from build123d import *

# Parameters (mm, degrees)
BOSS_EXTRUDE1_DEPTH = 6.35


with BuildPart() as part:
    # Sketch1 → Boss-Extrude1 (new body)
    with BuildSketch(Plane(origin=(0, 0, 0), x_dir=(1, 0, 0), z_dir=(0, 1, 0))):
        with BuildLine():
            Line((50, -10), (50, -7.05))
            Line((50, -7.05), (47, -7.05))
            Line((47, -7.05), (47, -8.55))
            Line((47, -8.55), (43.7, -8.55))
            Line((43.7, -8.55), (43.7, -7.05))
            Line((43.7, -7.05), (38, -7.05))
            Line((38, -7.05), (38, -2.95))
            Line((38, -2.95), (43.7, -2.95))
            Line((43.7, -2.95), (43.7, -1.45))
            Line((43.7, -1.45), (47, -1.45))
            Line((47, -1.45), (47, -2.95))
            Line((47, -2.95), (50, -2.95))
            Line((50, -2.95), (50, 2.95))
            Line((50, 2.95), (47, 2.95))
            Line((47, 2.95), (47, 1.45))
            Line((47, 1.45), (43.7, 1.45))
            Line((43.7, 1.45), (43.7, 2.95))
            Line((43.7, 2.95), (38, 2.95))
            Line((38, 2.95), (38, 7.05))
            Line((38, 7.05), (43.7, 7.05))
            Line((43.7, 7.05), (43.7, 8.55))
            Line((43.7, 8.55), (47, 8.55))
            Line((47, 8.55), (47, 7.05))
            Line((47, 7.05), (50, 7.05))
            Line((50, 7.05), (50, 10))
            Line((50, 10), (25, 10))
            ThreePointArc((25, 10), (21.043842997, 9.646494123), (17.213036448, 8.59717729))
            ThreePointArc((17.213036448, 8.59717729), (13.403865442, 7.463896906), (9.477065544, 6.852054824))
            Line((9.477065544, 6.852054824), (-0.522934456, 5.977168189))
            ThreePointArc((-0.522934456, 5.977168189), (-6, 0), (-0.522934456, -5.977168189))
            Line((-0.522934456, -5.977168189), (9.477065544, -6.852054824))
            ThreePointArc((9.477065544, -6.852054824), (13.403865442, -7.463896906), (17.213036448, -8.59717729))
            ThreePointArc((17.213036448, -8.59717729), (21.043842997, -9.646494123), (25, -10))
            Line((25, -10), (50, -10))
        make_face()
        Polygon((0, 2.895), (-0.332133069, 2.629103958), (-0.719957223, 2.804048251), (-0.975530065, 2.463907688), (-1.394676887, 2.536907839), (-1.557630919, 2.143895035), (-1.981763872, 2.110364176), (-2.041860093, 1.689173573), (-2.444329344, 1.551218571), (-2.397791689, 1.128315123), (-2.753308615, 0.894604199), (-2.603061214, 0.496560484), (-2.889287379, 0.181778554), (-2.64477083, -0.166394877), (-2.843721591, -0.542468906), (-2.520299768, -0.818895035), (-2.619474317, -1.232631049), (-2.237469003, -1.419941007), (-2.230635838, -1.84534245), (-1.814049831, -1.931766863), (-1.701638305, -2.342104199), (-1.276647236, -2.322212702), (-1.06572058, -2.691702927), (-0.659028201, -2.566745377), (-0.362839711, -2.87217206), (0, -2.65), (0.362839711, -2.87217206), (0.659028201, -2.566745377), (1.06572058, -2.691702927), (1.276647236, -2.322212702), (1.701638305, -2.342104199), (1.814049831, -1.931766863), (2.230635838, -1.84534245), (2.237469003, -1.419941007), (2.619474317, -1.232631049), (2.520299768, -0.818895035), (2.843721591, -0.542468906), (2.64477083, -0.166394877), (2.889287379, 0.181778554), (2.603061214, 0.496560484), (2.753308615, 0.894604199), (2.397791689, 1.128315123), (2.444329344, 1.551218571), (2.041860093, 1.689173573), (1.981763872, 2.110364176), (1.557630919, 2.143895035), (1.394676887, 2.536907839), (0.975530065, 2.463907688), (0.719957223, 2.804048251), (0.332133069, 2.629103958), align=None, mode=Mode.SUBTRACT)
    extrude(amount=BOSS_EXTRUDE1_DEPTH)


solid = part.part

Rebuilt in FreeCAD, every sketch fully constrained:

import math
import FreeCAD as App
import Part
import Sketcher
from FreeCAD import Vector
Q = App.Units.Quantity


def add_polygon(sketch, points):
    """Adds a closed chain of lines whose ends are joined by coincident constraints."""
    first, n = sketch.GeometryCount, len(points)
    for a, b in zip(points, points[1:] + points[:1]):
        sketch.addGeometry(Part.LineSegment(App.Vector(*a, 0), App.Vector(*b, 0)), False)
    for i in range(n):
        sketch.addConstraint(Sketcher.Constraint("Coincident", first + i, 2, first + (i + 1) % n, 1))

doc = App.newDocument("Part")
params = doc.addObject("Spreadsheet::Sheet", "Params")
for row, (alias, value) in enumerate([
    ("sketch1_radius", "6 mm"),
    ("sketch1_width", "3 mm"),
    ("sketch1_width2", "25 mm"),
    ("sketch1_width3", "3.3 mm"),
    ("sketch1_width4", "5.7 mm"),
    ("pad1_length", "6.35 mm"),
], start=1):
    params.set(f"A{row}", alias)
    params.set(f"B{row}", "=" + value)
    params.setAlias(f"B{row}", alias)

body = doc.addObject("PartDesign::Body", "Body")

# Sketch on XZ plane
sketch1 = body.newObject("Sketcher::SketchObject", "Sketch")
sketch1.AttachmentSupport = (doc.getObject("XZ_Plane"), [""])
sketch1.MapMode = "FlatFace"
sketch1.addGeometry(Part.LineSegment(Vector(50, 10, 0), Vector(50, 7.05, 0)), False)  # 0
sketch1.addGeometry(Part.LineSegment(Vector(50, 7.05, 0), Vector(47, 7.05, 0)), False)  # 1
sketch1.addGeometry(Part.LineSegment(Vector(47, 7.05, 0), Vector(47, 8.55, 0)), False)  # 2
sketch1.addGeometry(Part.LineSegment(Vector(47, 8.55, 0), Vector(43.7, 8.55, 0)), False)  # 3
sketch1.addGeometry(Part.LineSegment(Vector(43.7, 8.55, 0), Vector(43.7, 7.05, 0)), False)  # 4
sketch1.addGeometry(Part.LineSegment(Vector(43.7, 7.05, 0), Vector(38, 7.05, 0)), False)  # 5
sketch1.addGeometry(Part.LineSegment(Vector(38, 7.05, 0), Vector(38, 2.95, 0)), False)  # 6
sketch1.addGeometry(Part.LineSegment(Vector(38, 2.95, 0), Vector(43.7, 2.95, 0)), False)  # 7
sketch1.addGeometry(Part.LineSegment(Vector(43.7, 2.95, 0), Vector(43.7, 1.45, 0)), False)  # 8
sketch1.addGeometry(Part.LineSegment(Vector(43.7, 1.45, 0), Vector(47, 1.45, 0)), False)  # 9
sketch1.addGeometry(Part.LineSegment(Vector(47, 1.45, 0), Vector(47, 2.95, 0)), False)  # 10
sketch1.addGeometry(Part.LineSegment(Vector(47, 2.95, 0), Vector(50, 2.95, 0)), False)  # 11
sketch1.addGeometry(Part.LineSegment(Vector(50, 2.95, 0), Vector(50, -2.95, 0)), False)  # 12
sketch1.addGeometry(Part.LineSegment(Vector(50, -2.95, 0), Vector(47, -2.95, 0)), False)  # 13
sketch1.addGeometry(Part.LineSegment(Vector(47, -2.95, 0), Vector(47, -1.45, 0)), False)  # 14
sketch1.addGeometry(Part.LineSegment(Vector(47, -1.45, 0), Vector(43.7, -1.45, 0)), False)  # 15
sketch1.addGeometry(Part.LineSegment(Vector(43.7, -1.45, 0), Vector(43.7, -2.95, 0)), False)  # 16
sketch1.addGeometry(Part.LineSegment(Vector(43.7, -2.95, 0), Vector(38, -2.95, 0)), False)  # 17
sketch1.addGeometry(Part.LineSegment(Vector(38, -2.95, 0), Vector(38, -7.05, 0)), False)  # 18
sketch1.addGeometry(Part.LineSegment(Vector(38, -7.05, 0), Vector(43.7, -7.05, 0)), False)  # 19
sketch1.addGeometry(Part.LineSegment(Vector(43.7, -7.05, 0), Vector(43.7, -8.55, 0)), False)  # 20
sketch1.addGeometry(Part.LineSegment(Vector(43.7, -8.55, 0), Vector(47, -8.55, 0)), False)  # 21
sketch1.addGeometry(Part.LineSegment(Vector(47, -8.55, 0), Vector(47, -7.05, 0)), False)  # 22
sketch1.addGeometry(Part.LineSegment(Vector(47, -7.05, 0), Vector(50, -7.05, 0)), False)  # 23
sketch1.addGeometry(Part.LineSegment(Vector(50, -7.05, 0), Vector(50, -10, 0)), False)  # 24
sketch1.addGeometry(Part.LineSegment(Vector(50, -10, 0), Vector(25, -10, 0)), False)  # 25
sketch1.addGeometry(Part.ArcOfCircle(Part.Circle(Vector(25, 12.31, 0), Vector(0, 0, 1), 22.31), math.radians(-110), math.radians(-90)), False)  # 26
sketch1.addGeometry(Part.ArcOfCircle(Part.Circle(Vector(6.9, -36.29, 0), Vector(0, 0, 1), 29.55), math.radians(69.58), math.radians(85)), False)  # 27
sketch1.addGeometry(Part.LineSegment(Vector(9.48, -6.85, 0), Vector(-0.52, -5.98, 0)), False)  # 28
sketch1.addGeometry(Part.ArcOfCircle(Part.Circle(Vector(0, 0, 0), Vector(0, 0, 1), 6), math.radians(95), math.radians(265)), False)  # 29
sketch1.addGeometry(Part.LineSegment(Vector(-0.52, 5.98, 0), Vector(9.48, 6.85, 0)), False)  # 30
sketch1.addGeometry(Part.ArcOfCircle(Part.Circle(Vector(6.9, 36.29, 0), Vector(0, 0, 1), 29.55), math.radians(-85), math.radians(-69.58)), False)  # 31
sketch1.addGeometry(Part.ArcOfCircle(Part.Circle(Vector(25, -12.31, 0), Vector(0, 0, 1), 22.31), math.radians(90), math.radians(110)), False)  # 32
sketch1.addGeometry(Part.LineSegment(Vector(25, 10, 0), Vector(50, 10, 0)), False)  # 33
add_polygon(sketch1, [(-0.33, -2.63), (0, -2.9), (0.33, -2.63), (0.72, -2.8), (0.98, -2.46), (1.39, -2.54), (1.56, -2.14), (1.98, -2.11), (2.04, -1.69), (2.44, -1.55), (2.4, -1.13), (2.75, -0.89), (2.6, -0.5), (2.89, -0.18), (2.64, 0.17), (2.84, 0.54), (2.52, 0.82), (2.62, 1.23), (2.24, 1.42), (2.23, 1.85), (1.81, 1.93), (1.7, 2.34), (1.28, 2.32), (1.07, 2.69), (0.66, 2.57), (0.36, 2.87), (0, 2.65), (-0.36, 2.87), (-0.66, 2.57), (-1.07, 2.69), (-1.28, 2.32), (-1.7, 2.34), (-1.81, 1.93), (-2.23, 1.85), (-2.24, 1.42), (-2.62, 1.23), (-2.52, 0.82), (-2.84, 0.54), (-2.64, 0.17), (-2.89, -0.18), (-2.6, -0.5), (-2.75, -0.89), (-2.4, -1.13), (-2.44, -1.55), (-2.04, -1.69), (-1.98, -2.11), (-1.56, -2.14), (-1.39, -2.54), (-0.98, -2.46), (-0.72, -2.8)])  # lines 34-83
sketch1.addConstraint(Sketcher.Constraint("Coincident", 0, 2, 1, 1))
sketch1.addConstraint(Sketcher.Constraint("Coincident", 1, 2, 2, 1))
sketch1.addConstraint(Sketcher.Constraint("Coincident", 2, 2, 3, 1))
sketch1.addConstraint(Sketcher.Constraint("Coincident", 3, 2, 4, 1))
sketch1.addConstraint(Sketcher.Constraint("Coincident", 4, 2, 5, 1))
sketch1.addConstraint(Sketcher.Constraint("Coincident", 5, 2, 6, 1))
sketch1.addConstraint(Sketcher.Constraint("Coincident", 6, 2, 7, 1))
sketch1.addConstraint(Sketcher.Constraint("Coincident", 7, 2, 8, 1))
sketch1.addConstraint(Sketcher.Constraint("Coincident", 8, 2, 9, 1))
sketch1.addConstraint(Sketcher.Constraint("Coincident", 9, 2, 10, 1))
sketch1.addConstraint(Sketcher.Constraint("Coincident", 10, 2, 11, 1))
sketch1.addConstraint(Sketcher.Constraint("Coincident", 11, 2, 12, 1))
sketch1.addConstraint(Sketcher.Constraint("Coincident", 12, 2, 13, 1))
sketch1.addConstraint(Sketcher.Constraint("Coincident", 13, 2, 14, 1))
sketch1.addConstraint(Sketcher.Constraint("Coincident", 14, 2, 15, 1))
sketch1.addConstraint(Sketcher.Constraint("Coincident", 15, 2, 16, 1))
sketch1.addConstraint(Sketcher.Constraint("Coincident", 16, 2, 17, 1))
sketch1.addConstraint(Sketcher.Constraint("Coincident", 17, 2, 18, 1))
sketch1.addConstraint(Sketcher.Constraint("Coincident", 18, 2, 19, 1))
sketch1.addConstraint(Sketcher.Constraint("Coincident", 19, 2, 20, 1))
sketch1.addConstraint(Sketcher.Constraint("Coincident", 20, 2, 21, 1))
sketch1.addConstraint(Sketcher.Constraint("Coincident", 21, 2, 22, 1))
sketch1.addConstraint(Sketcher.Constraint("Coincident", 22, 2, 23, 1))
sketch1.addConstraint(Sketcher.Constraint("Coincident", 23, 2, 24, 1))
sketch1.addConstraint(Sketcher.Constraint("Coincident", 24, 2, 25, 1))
sketch1.addConstraint(Sketcher.Constraint("Tangent", 25, 2, 26, 2))
sketch1.addConstraint(Sketcher.Constraint("Tangent", 26, 1, 27, 1))
sketch1.addConstraint(Sketcher.Constraint("Tangent", 27, 2, 28, 1))
sketch1.addConstraint(Sketcher.Constraint("Tangent", 28, 2, 29, 2))
sketch1.addConstraint(Sketcher.Constraint("Tangent", 29, 1, 30, 1))
sketch1.addConstraint(Sketcher.Constraint("Tangent", 30, 2, 31, 1))
sketch1.addConstraint(Sketcher.Constraint("Tangent", 31, 2, 32, 2))
sketch1.addConstraint(Sketcher.Constraint("Tangent", 32, 1, 33, 1))
sketch1.addConstraint(Sketcher.Constraint("Coincident", 33, 2, 0, 1))
sketch1.addConstraint(Sketcher.Constraint("Vertical", 0))
sketch1.addConstraint(Sketcher.Constraint("Horizontal", 1))
sketch1.addConstraint(Sketcher.Constraint("Vertical", 2))
sketch1.addConstraint(Sketcher.Constraint("Horizontal", 3))
sketch1.addConstraint(Sketcher.Constraint("Vertical", 4))
sketch1.addConstraint(Sketcher.Constraint("Horizontal", 5))
sketch1.addConstraint(Sketcher.Constraint("Vertical", 6))
sketch1.addConstraint(Sketcher.Constraint("Horizontal", 7))
sketch1.addConstraint(Sketcher.Constraint("Vertical", 8))
sketch1.addConstraint(Sketcher.Constraint("Horizontal", 9))
sketch1.addConstraint(Sketcher.Constraint("Vertical", 10))
sketch1.addConstraint(Sketcher.Constraint("Horizontal", 11))
sketch1.addConstraint(Sketcher.Constraint("Vertical", 12))
sketch1.addConstraint(Sketcher.Constraint("Horizontal", 13))
sketch1.addConstraint(Sketcher.Constraint("Vertical", 14))
sketch1.addConstraint(Sketcher.Constraint("Horizontal", 15))
sketch1.addConstraint(Sketcher.Constraint("Vertical", 16))
sketch1.addConstraint(Sketcher.Constraint("Horizontal", 17))
sketch1.addConstraint(Sketcher.Constraint("Vertical", 18))
sketch1.addConstraint(Sketcher.Constraint("Horizontal", 19))
sketch1.addConstraint(Sketcher.Constraint("Vertical", 20))
sketch1.addConstraint(Sketcher.Constraint("Horizontal", 21))
sketch1.addConstraint(Sketcher.Constraint("Vertical", 22))
sketch1.addConstraint(Sketcher.Constraint("Horizontal", 23))
sketch1.addConstraint(Sketcher.Constraint("Vertical", 24))
sketch1.addConstraint(Sketcher.Constraint("Horizontal", 25))
sketch1.addConstraint(Sketcher.Constraint("Horizontal", 33))
sketch1.addConstraint(Sketcher.Constraint("Coincident", 29, 3, -1, 1))
sketch1.addConstraint(Sketcher.Constraint("Equal", 27, 31))
sketch1.addConstraint(Sketcher.Constraint("Equal", 26, 32))
sketch1.addConstraint(Sketcher.Constraint("Symmetric", 58, 2, 60, 2, -2))
sketch1.addConstraint(Sketcher.Constraint("Symmetric", 57, 2, 61, 2, -2))
sketch1.addConstraint(Sketcher.Constraint("Symmetric", 56, 2, 62, 2, -2))
sketch1.addConstraint(Sketcher.Constraint("Symmetric", 55, 2, 63, 2, -2))
sketch1.addConstraint(Sketcher.Constraint("Symmetric", 54, 2, 64, 2, -2))
sketch1.addConstraint(Sketcher.Constraint("Symmetric", 53, 2, 65, 2, -2))
sketch1.addConstraint(Sketcher.Constraint("Symmetric", 52, 2, 66, 2, -2))
sketch1.addConstraint(Sketcher.Constraint("Symmetric", 51, 2, 67, 2, -2))
sketch1.addConstraint(Sketcher.Constraint("Symmetric", 50, 2, 68, 2, -2))
sketch1.addConstraint(Sketcher.Constraint("Symmetric", 49, 2, 69, 2, -2))
sketch1.addConstraint(Sketcher.Constraint("Symmetric", 48, 2, 70, 2, -2))
sketch1.addConstraint(Sketcher.Constraint("Symmetric", 47, 2, 71, 2, -2))
sketch1.addConstraint(Sketcher.Constraint("Symmetric", 46, 2, 72, 2, -2))
sketch1.addConstraint(Sketcher.Constraint("Symmetric", 45, 2, 73, 2, -2))
sketch1.addConstraint(Sketcher.Constraint("Symmetric", 44, 2, 74, 2, -2))
sketch1.addConstraint(Sketcher.Constraint("Symmetric", 43, 2, 75, 2, -2))
sketch1.addConstraint(Sketcher.Constraint("Symmetric", 42, 2, 76, 2, -2))
sketch1.addConstraint(Sketcher.Constraint("Symmetric", 41, 2, 77, 2, -2))
sketch1.addConstraint(Sketcher.Constraint("Symmetric", 40, 2, 78, 2, -2))
sketch1.addConstraint(Sketcher.Constraint("Symmetric", 39, 2, 79, 2, -2))
sketch1.addConstraint(Sketcher.Constraint("Symmetric", 38, 2, 80, 2, -2))
sketch1.addConstraint(Sketcher.Constraint("Symmetric", 37, 2, 81, 2, -2))
sketch1.addConstraint(Sketcher.Constraint("Symmetric", 36, 2, 82, 2, -2))
sketch1.addConstraint(Sketcher.Constraint("Symmetric", 35, 2, 83, 2, -2))
sketch1.addConstraint(Sketcher.Constraint("Symmetric", 27, 3, 31, 3, -1))
sketch1.addConstraint(Sketcher.Constraint("Symmetric", 10, 2, 13, 2, -1))
sketch1.addConstraint(Sketcher.Constraint("Symmetric", 8, 2, 15, 2, -1))
sketch1.addConstraint(Sketcher.Constraint("Symmetric", 6, 2, 17, 2, -1))
sketch1.addConstraint(Sketcher.Constraint("Symmetric", 4, 2, 19, 2, -1))
sketch1.addConstraint(Sketcher.Constraint("Symmetric", 2, 2, 21, 2, -1))
sketch1.addConstraint(Sketcher.Constraint("Symmetric", 0, 2, 23, 2, -1))
sketch1.addConstraint(Sketcher.Constraint("PointOnObject", 34, 2, -2))
sketch1.addConstraint(Sketcher.Constraint("PointOnObject", 59, 2, -2))
sketch1.addConstraint(Sketcher.Constraint("Horizontal", 1, 2, 4, 2))
sketch1.addConstraint(Sketcher.Constraint("Horizontal", 7, 2, 10, 2))
sketch1.addConstraint(Sketcher.Constraint("Vertical", 26, 3, 32, 3))
sketch1.addConstraint(Sketcher.Constraint("Vertical", 4, 2, 7, 2))
sketch1.addConstraint(Sketcher.Constraint("Vertical", 2, 2, 9, 2))
sketch1.addConstraint(Sketcher.Constraint("Vertical", 0, 2, 11, 2))
sketch1.addConstraint(Sketcher.Constraint("Equal", 4, 8))
sketch1.addConstraint(Sketcher.Constraint("Equal", 35, 36))
sketch1.addConstraint(Sketcher.Constraint("Equal", 36, 37))
sketch1.addConstraint(Sketcher.Constraint("Equal", 37, 38))
sketch1.addConstraint(Sketcher.Constraint("Equal", 38, 39))
sketch1.addConstraint(Sketcher.Constraint("Equal", 39, 40))
sketch1.addConstraint(Sketcher.Constraint("Equal", 40, 41))
sketch1.addConstraint(Sketcher.Constraint("Equal", 41, 42))
sketch1.addConstraint(Sketcher.Constraint("Equal", 42, 43))
sketch1.addConstraint(Sketcher.Constraint("Equal", 43, 44))
sketch1.addConstraint(Sketcher.Constraint("Equal", 44, 45))
sketch1.addConstraint(Sketcher.Constraint("Equal", 45, 46))
sketch1.addConstraint(Sketcher.Constraint("Equal", 46, 47))
sketch1.addConstraint(Sketcher.Constraint("Equal", 47, 48))
sketch1.addConstraint(Sketcher.Constraint("Equal", 48, 49))
sketch1.addConstraint(Sketcher.Constraint("Equal", 49, 50))
sketch1.addConstraint(Sketcher.Constraint("Equal", 50, 51))
sketch1.addConstraint(Sketcher.Constraint("Equal", 51, 52))
sketch1.addConstraint(Sketcher.Constraint("Equal", 52, 53))
sketch1.addConstraint(Sketcher.Constraint("Equal", 53, 54))
sketch1.addConstraint(Sketcher.Constraint("Equal", 54, 55))
sketch1.addConstraint(Sketcher.Constraint("Equal", 55, 56))
sketch1.addConstraint(Sketcher.Constraint("Equal", 56, 57))
sketch1.addConstraint(Sketcher.Constraint("Equal", 57, 58))
sketch1.addConstraint(Sketcher.Constraint("Equal", 58, 59))
sketch1.addConstraint(Sketcher.Constraint("Radius", 29, 6.0))
sketch1.addConstraint(Sketcher.Constraint("DistanceX", 1, 2, 1, 1, 3.0))
sketch1.addConstraint(Sketcher.Constraint("DistanceX", 25, 2, 25, 1, 25.0))
sketch1.addConstraint(Sketcher.Constraint("Angle", 28, Q("175 deg")))
sketch1.addConstraint(Sketcher.Constraint("DistanceX", 3, 2, 3, 1, 3.3))
sketch1.addConstraint(Sketcher.Constraint("DistanceX", 5, 2, 5, 1, 5.7))
sketch1.addConstraint(Sketcher.Constraint("DistanceY", 2, 1, 2, 2, 1.5))
sketch1.addConstraint(Sketcher.Constraint("DistanceY", 6, 2, 6, 1, 4.1))
sketch1.addConstraint(Sketcher.Constraint("DistanceY", 12, 2, 12, 1, 5.9))
sketch1.addConstraint(Sketcher.Constraint("DistanceX", -1, 1, 26, 3, 25.0))
sketch1.addConstraint(Sketcher.Constraint("DistanceY", 24, 2, -1, 1, 10.0))
sketch1.addConstraint(Sketcher.Constraint("DistanceY", -1, 1, 59, 2, 2.65))
sketch1.addConstraint(Sketcher.Constraint("DistanceY", 34, 2, -1, 1, 2.895))
sketch1.addConstraint(Sketcher.Constraint("Radius", 26, 22.313836))
sketch1.addConstraint(Sketcher.Constraint("Radius", 27, 29.547028))
sketch1.addConstraint(Sketcher.Constraint("DistanceX", -1, 1, 49, 2, 2.5203))
sketch1.addConstraint(Sketcher.Constraint("DistanceY", 36, 2, -1, 1, 2.804048))
sketch1.addConstraint(Sketcher.Constraint("DistanceX", -1, 1, 37, 2, 0.97553))
sketch1.addConstraint(Sketcher.Constraint("DistanceX", -1, 1, 39, 2, 1.557631))
sketch1.addConstraint(Sketcher.Constraint("DistanceX", -1, 1, 41, 2, 2.04186))
sketch1.addConstraint(Sketcher.Constraint("DistanceX", -1, 1, 42, 2, 2.444329))
sketch1.addConstraint(Sketcher.Constraint("DistanceY", 42, 2, -1, 1, 1.551219))
sketch1.addConstraint(Sketcher.Constraint("DistanceX", -1, 1, 43, 2, 2.397792))
sketch1.addConstraint(Sketcher.Constraint("DistanceX", -1, 1, 44, 2, 2.753309))
sketch1.addConstraint(Sketcher.Constraint("DistanceX", -1, 1, 45, 2, 2.603061))
sketch1.addConstraint(Sketcher.Constraint("DistanceY", 45, 2, -1, 1, 0.49656))
sketch1.addConstraint(Sketcher.Constraint("DistanceY", 46, 2, -1, 1, 0.181779))
sketch1.addConstraint(Sketcher.Constraint("DistanceX", -1, 1, 47, 2, 2.644771))
sketch1.addConstraint(Sketcher.Constraint("DistanceX", -1, 1, 48, 2, 2.843722))
sketch1.addConstraint(Sketcher.Constraint("DistanceY", -1, 1, 50, 2, 1.232631))
sketch1.addConstraint(Sketcher.Constraint("DistanceX", -1, 1, 51, 2, 2.237469))
sketch1.addConstraint(Sketcher.Constraint("DistanceX", -1, 1, 53, 2, 1.81405))
sketch1.addConstraint(Sketcher.Constraint("DistanceX", -1, 1, 54, 2, 1.701638))
sketch1.addConstraint(Sketcher.Constraint("DistanceX", -1, 1, 56, 2, 1.065721))
sketch1.addConstraint(Sketcher.Constraint("DistanceX", -1, 1, 57, 2, 0.659028))
sketch1.addConstraint(Sketcher.Constraint("DistanceX", -1, 1, 58, 2, 0.36284))
sketch1.addConstraint(Sketcher.Constraint("DistanceX", -1, 1, 35, 2, 0.332133))
sketch1.addConstraint(Sketcher.Constraint("DistanceX", -1, 1, 38, 2, 1.394677))
sketch1.addConstraint(Sketcher.Constraint("DistanceX", -1, 1, 52, 2, 2.230636))
sketch1.setExpression("Constraints[178]", "Params.sketch1_radius")
sketch1.setExpression("Constraints[179]", "Params.sketch1_width")
sketch1.setExpression("Constraints[180]", "Params.sketch1_width2")
sketch1.setExpression("Constraints[182]", "Params.sketch1_width3")
sketch1.setExpression("Constraints[183]", "Params.sketch1_width4")
pad1 = body.newObject("PartDesign::Pad", "Pad")
pad1.Profile = sketch1
pad1.setExpression("Length", "Params.pad1_length")
pad1.Reversed = True

doc.recompute()
